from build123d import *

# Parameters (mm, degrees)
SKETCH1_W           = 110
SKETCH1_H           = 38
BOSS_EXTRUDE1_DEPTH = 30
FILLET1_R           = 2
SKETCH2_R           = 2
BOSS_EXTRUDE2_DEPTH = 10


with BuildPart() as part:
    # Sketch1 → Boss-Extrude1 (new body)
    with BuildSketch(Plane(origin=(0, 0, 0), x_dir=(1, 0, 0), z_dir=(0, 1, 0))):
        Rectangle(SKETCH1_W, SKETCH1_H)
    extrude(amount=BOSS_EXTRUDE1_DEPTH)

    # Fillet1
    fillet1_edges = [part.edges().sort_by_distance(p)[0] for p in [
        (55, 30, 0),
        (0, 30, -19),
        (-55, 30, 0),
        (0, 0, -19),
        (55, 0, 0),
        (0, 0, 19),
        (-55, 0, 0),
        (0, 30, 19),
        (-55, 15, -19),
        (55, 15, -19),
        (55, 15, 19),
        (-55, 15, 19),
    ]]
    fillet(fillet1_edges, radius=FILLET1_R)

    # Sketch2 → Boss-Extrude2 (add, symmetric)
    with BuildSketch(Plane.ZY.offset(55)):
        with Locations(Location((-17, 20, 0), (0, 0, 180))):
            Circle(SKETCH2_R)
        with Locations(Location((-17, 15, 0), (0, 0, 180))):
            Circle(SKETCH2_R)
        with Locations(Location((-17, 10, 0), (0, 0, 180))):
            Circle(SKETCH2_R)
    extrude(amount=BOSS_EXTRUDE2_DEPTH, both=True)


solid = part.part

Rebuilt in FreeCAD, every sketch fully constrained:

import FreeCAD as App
import Part
import Sketcher

V = App.Vector

doc = App.newDocument("Part")
body = doc.addObject("PartDesign::Body", "Body")

# Sketch on XZ plane
sketch1 = body.newObject("Sketcher::SketchObject", "Sketch")
sketch1.AttachmentSupport = (doc.getObject("XZ_Plane"), [""])
sketch1.MapMode = "FlatFace"
sketch1.addGeometry([
    Part.LineSegment(V(-55, -19, 0), V(-55, 19, 0)),
    Part.LineSegment(V(-55, 19, 0), V(55, 19, 0)),
    Part.LineSegment(V(55, 19, 0), V(55, -19, 0)),
    Part.LineSegment(V(55, -19, 0), V(-55, -19, 0)),
], False)
sketch1.addConstraint([
    Sketcher.Constraint("Coincident", 0, 2, 1, 1),
    Sketcher.Constraint("Coincident", 1, 2, 2, 1),
    Sketcher.Constraint("Coincident", 2, 2, 3, 1),
    Sketcher.Constraint("Coincident", 3, 2, 0, 1),
    Sketcher.Constraint("Vertical", 0),
    Sketcher.Constraint("Horizontal", 1),
    Sketcher.Constraint("Vertical", 2),
    Sketcher.Constraint("Horizontal", 3),
    Sketcher.Constraint("Symmetric", 0, 2, 2, 2, -1, 1),
    Sketcher.Constraint("DistanceX", 1, 1, 1, 2, 110.0),
    Sketcher.Constraint("DistanceY", 0, 1, 0, 2, 38.0),
])
pad1 = body.newObject("PartDesign::Pad", "Pad")
pad1.Profile = sketch1
pad1.Length = 30
pad1.Reversed = True
doc.recompute()

fillet = body.newObject("PartDesign::Fillet", "Fillet")
fillet.Base = (pad1, ["Edge1"])
fillet.UseAllEdges = True
fillet.Radius = 2

# Sketch on YZ plane
sketch2 = body.newObject("Sketcher::SketchObject", "Sketch001")
sketch2.AttachmentSupport = (doc.getObject("YZ_Plane"), [""])
sketch2.MapMode = "FlatFace"
sketch2.AttachmentOffset = App.Placement(V(0, 0, -55), App.Rotation())
sketch2.addGeometry([
    Part.Circle(V(20, -17, 0), V(0, 0, 1), 2),
    Part.Circle(V(15, -17, 0), V(0, 0, 1), 2),
    Part.Circle(V(10, -17, 0), V(0, 0, 1), 2),
], False)
sketch2.addConstraint([
    Sketcher.Constraint("Equal", 0, 1),
    Sketcher.Constraint("Equal", 1, 2),
    Sketcher.Constraint("Horizontal", 0, 3, 1, 3),
    Sketcher.Constraint("Horizontal", 1, 3, 2, 3),
    Sketcher.Constraint("Diameter", 0, 4.0),
    Sketcher.Constraint("DistanceX", -1, 1, 0, 3, 20.0),
    Sketcher.Constraint("DistanceY", 0, 3, -1, 1, 17.0),
    Sketcher.Constraint("DistanceX", -1, 1, 1, 3, 15.0),
    Sketcher.Constraint("DistanceX", -1, 1, 2, 3, 10.0),
])
pad2 = body.newObject("PartDesign::Pad", "Pad001")
pad2.Profile = sketch2
pad2.Length = 20
pad2.Midplane = True

doc.recompute()
